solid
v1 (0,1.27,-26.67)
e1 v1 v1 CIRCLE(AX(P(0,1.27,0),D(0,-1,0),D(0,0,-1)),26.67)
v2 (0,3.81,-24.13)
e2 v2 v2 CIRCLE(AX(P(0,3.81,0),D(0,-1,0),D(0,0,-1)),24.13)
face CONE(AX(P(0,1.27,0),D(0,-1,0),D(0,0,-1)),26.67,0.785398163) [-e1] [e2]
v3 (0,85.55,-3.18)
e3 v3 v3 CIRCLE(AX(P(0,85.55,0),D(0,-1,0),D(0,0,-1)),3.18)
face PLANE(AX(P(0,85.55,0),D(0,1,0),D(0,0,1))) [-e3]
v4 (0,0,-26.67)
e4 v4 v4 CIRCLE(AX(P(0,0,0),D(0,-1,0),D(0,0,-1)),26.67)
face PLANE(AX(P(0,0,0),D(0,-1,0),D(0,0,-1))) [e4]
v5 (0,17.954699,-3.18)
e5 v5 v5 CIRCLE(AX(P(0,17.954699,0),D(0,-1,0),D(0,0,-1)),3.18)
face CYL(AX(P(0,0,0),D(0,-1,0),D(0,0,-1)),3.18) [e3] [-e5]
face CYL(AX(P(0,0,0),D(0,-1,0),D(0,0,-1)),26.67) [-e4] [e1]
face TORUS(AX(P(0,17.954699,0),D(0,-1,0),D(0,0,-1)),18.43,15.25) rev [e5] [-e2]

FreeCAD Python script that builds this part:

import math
import FreeCAD as App
import Part
import Sketcher
Q = App.Units.Quantity

doc = App.newDocument("Part")
body = doc.addObject("PartDesign::Body", "Body")

sketch1 = body.newObject("Sketcher::SketchObject", "Sketch")
sketch1.AttachmentSupport = (doc.getObject("XY_Plane"), [""])
sketch1.MapMode = "FlatFace"
sketch1.addGeometry(Part.LineSegment(App.Vector(0, 85.5, 0), App.Vector(0, 0, 0)), False)
sketch1.addGeometry(Part.LineSegment(App.Vector(0, 0, 0), App.Vector(26.7, 0, 0)), False)
sketch1.addGeometry(Part.LineSegment(App.Vector(26.7, 0, 0), App.Vector(26.7, 1.3, 0)), False)
sketch1.addGeometry(Part.LineSegment(App.Vector(26.7, 1.3, 0), App.Vector(24.1, 3.8, 0)), False)
sketch1.addGeometry(Part.ArcOfCircle(Part.Circle(App.Vector(18.4, 18, 0), App.Vector(0, 0, 1), 15.2), math.radians(180), math.radians(292)), False)
sketch1.addGeometry(Part.LineSegment(App.Vector(3.2, 18, 0), App.Vector(3.2, 85.5, 0)), False)
sketch1.addGeometry(Part.LineSegment(App.Vector(3.2, 85.5, 0), App.Vector(0, 85.5, 0)), False)
sketch1.addConstraint(Sketcher.Constraint("Coincident", 0, 2, 1, 1))
sketch1.addConstraint(Sketcher.Constraint("Coincident", 1, 2, 2, 1))
sketch1.addConstraint(Sketcher.Constraint("Coincident", 2, 2, 3, 1))
sketch1.addConstraint(Sketcher.Constraint("Coincident", 3, 2, 4, 2))
sketch1.addConstraint(Sketcher.Constraint("Tangent", 4, 1, 5, 1))
sketch1.addConstraint(Sketcher.Constraint("Coincident", 5, 2, 6, 1))
sketch1.addConstraint(Sketcher.Constraint("Coincident", 6, 2, 0, 1))
sketch1.addConstraint(Sketcher.Constraint("Vertical", 0))
sketch1.addConstraint(Sketcher.Constraint("Horizontal", 1))
sketch1.addConstraint(Sketcher.Constraint("Vertical", 2))
sketch1.addConstraint(Sketcher.Constraint("Vertical", 5))
sketch1.addConstraint(Sketcher.Constraint("Horizontal", 6))
sketch1.addConstraint(Sketcher.Constraint("Coincident", 0, 2, -1, 1))
sketch1.addConstraint(Sketcher.Constraint("Angle", 3, Q("135 deg")))
sketch1.addConstraint(Sketcher.Constraint("DistanceX", 1, 1, 1, 2, Q("1.05 in")))
sketch1.addConstraint(Sketcher.Constraint("DistanceY", 2, 1, 2, 2, Q("0.05 in")))
sketch1.addConstraint(Sketcher.Constraint("DistanceX", 3, 2, 2, 2, Q("0.1 in")))
sketch1.addConstraint(Sketcher.Constraint("Radius", 4, Q("15.25 mm")))
sketch1.addConstraint(Sketcher.Constraint("DistanceX", 6, 2, 6, 1, Q("3.18 mm")))
sketch1.addConstraint(Sketcher.Constraint("DistanceY", 0, 2, 0, 1, Q("85.55 mm")))
revolution = body.newObject("PartDesign::Revolution", "Revolution")
revolution.Profile = sketch1
revolution.ReferenceAxis = (sketch1, ["V_Axis"])
revolution.Angle = 360

doc.recompute()
